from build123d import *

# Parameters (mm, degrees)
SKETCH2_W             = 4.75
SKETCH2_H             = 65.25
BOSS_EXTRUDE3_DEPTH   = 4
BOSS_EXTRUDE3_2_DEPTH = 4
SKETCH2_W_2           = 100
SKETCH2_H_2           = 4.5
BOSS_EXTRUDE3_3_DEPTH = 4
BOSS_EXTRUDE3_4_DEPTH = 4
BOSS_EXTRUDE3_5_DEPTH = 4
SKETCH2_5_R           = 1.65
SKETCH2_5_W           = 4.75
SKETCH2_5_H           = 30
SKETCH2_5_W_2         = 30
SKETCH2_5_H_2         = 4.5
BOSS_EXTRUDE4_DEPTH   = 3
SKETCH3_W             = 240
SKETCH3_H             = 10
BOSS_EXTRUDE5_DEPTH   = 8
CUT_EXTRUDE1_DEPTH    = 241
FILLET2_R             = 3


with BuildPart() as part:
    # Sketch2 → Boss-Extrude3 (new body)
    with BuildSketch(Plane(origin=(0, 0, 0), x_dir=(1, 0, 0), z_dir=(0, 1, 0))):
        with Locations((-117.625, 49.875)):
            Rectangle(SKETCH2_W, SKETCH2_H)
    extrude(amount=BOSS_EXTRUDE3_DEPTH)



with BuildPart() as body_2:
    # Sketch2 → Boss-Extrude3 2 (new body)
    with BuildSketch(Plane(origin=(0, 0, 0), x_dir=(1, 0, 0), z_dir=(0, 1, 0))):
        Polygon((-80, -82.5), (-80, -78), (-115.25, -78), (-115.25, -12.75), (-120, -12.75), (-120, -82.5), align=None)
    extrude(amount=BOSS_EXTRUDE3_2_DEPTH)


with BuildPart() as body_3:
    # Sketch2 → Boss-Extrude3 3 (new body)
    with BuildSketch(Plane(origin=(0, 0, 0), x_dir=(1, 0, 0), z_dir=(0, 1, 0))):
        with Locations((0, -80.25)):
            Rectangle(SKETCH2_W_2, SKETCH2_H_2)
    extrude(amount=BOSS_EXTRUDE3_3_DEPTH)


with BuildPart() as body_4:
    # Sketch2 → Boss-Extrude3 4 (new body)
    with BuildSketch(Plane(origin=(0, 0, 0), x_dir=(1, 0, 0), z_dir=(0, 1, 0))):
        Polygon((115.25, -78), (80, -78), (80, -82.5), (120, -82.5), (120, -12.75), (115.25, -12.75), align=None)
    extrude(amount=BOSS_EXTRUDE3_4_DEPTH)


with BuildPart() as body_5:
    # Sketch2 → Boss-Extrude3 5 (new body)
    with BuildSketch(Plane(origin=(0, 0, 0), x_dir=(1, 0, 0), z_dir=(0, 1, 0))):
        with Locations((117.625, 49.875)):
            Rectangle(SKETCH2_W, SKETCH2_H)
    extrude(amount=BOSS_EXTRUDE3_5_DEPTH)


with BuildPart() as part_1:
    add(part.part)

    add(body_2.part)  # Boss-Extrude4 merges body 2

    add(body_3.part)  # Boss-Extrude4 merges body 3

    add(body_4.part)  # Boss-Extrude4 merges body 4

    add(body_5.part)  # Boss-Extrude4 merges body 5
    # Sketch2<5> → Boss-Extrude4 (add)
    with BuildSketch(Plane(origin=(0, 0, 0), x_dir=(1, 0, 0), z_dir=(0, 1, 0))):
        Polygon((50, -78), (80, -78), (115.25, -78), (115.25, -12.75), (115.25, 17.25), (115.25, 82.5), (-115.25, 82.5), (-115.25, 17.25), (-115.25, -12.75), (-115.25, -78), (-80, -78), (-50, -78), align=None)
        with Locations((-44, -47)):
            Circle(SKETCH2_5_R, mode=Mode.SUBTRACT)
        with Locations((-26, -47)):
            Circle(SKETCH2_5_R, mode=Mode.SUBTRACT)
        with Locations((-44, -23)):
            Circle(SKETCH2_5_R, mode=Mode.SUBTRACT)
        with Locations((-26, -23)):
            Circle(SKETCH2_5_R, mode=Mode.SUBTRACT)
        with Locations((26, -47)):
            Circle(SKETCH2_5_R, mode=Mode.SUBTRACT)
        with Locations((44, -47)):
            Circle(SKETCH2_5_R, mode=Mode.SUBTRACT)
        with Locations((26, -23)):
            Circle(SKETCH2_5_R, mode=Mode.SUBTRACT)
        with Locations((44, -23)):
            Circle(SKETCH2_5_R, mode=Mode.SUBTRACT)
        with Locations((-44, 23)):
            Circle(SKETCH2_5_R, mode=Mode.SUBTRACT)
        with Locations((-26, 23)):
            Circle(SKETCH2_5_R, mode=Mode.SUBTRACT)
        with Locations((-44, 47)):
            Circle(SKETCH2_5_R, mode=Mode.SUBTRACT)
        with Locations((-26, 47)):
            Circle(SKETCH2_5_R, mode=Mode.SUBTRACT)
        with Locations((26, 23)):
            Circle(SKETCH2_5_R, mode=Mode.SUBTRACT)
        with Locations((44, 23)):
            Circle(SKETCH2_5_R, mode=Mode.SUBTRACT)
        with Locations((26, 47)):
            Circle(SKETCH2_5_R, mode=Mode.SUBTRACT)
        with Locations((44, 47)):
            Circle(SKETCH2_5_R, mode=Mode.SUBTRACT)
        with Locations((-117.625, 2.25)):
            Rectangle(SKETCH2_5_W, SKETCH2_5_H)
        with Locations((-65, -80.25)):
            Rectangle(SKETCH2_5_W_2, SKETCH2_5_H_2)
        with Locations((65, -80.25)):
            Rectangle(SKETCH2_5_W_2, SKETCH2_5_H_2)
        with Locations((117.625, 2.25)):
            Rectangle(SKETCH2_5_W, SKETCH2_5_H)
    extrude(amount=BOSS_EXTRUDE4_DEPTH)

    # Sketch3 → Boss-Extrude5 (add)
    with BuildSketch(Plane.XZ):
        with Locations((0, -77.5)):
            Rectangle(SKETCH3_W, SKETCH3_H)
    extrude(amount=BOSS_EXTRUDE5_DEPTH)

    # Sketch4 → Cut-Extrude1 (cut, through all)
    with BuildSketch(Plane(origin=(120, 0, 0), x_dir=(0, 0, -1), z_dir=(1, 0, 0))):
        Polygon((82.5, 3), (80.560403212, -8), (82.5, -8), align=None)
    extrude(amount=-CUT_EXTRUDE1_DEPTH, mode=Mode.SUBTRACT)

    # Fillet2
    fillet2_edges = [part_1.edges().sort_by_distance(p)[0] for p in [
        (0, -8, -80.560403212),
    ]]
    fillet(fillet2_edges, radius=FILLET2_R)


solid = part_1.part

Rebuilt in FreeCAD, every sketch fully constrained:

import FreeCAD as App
import Part
import Sketcher

V = App.Vector
Q = App.Units.Quantity


def edges_at(feature, points):
    """Names of the edges that pass closest to the given points."""
    edges = feature.Shape.Edges
    near = lambda p: min(range(len(edges)), key=lambda i: edges[i].distToShape(Part.Vertex(*p))[0])
    return sorted({f"Edge{near(p) + 1}" for p in points})

doc = App.newDocument("Part")
body = doc.addObject("PartDesign::Body", "Body")

# Sketch on XZ plane
sketch1 = body.newObject("Sketcher::SketchObject", "Sketch")
sketch1.AttachmentSupport = (doc.getObject("XZ_Plane"), [""])
sketch1.MapMode = "FlatFace"
sketch1.addGeometry(Part.LineSegment(V(-120, -82.5, 0), V(-120, -17.2, 0)), False)
sketch1.addGeometry(Part.LineSegment(V(-120, -17.2, 0), V(-115.2, -17.2, 0)), False)
sketch1.addGeometry(Part.LineSegment(V(-115.2, -17.2, 0), V(-115.2, -82.5, 0)), False)
sketch1.addGeometry(Part.LineSegment(V(-115.2, -82.5, 0), V(-120, -82.5, 0)), False)
sketch1.addConstraint(Sketcher.Constraint("Coincident", 0, 2, 1, 1))
sketch1.addConstraint(Sketcher.Constraint("Coincident", 1, 2, 2, 1))
sketch1.addConstraint(Sketcher.Constraint("Coincident", 2, 2, 3, 1))
sketch1.addConstraint(Sketcher.Constraint("Coincident", 3, 2, 0, 1))
sketch1.addConstraint(Sketcher.Constraint("Vertical", 0))
sketch1.addConstraint(Sketcher.Constraint("Horizontal", 1))
sketch1.addConstraint(Sketcher.Constraint("Vertical", 2))
sketch1.addConstraint(Sketcher.Constraint("Horizontal", 3))
sketch1.addConstraint(Sketcher.Constraint("DistanceX", 0, 2, -1, 1, Q("120 mm")))
sketch1.addConstraint(Sketcher.Constraint("DistanceX", 1, 1, 1, 2, Q("4.75 mm")))
sketch1.addConstraint(Sketcher.Constraint("DistanceY", 0, 1, 0, 2, Q("65.25 mm")))
sketch1.addConstraint(Sketcher.Constraint("DistanceY", 2, 2, -1, 1, Q("82.5 mm")))
pad1 = body.newObject("PartDesign::Pad", "Pad")
pad1.Profile = sketch1
pad1.Length = 4
pad1.Reversed = True
body2 = doc.addObject("PartDesign::Body", "Body001")

# Sketch on XZ plane
sketch2 = body2.newObject("Sketcher::SketchObject", "Sketch001")
sketch2.AttachmentSupport = (doc.getObject("XZ_Plane001"), [""])
sketch2.MapMode = "FlatFace"
sketch2.addGeometry(Part.LineSegment(V(-80, 82.5, 0), V(-80, 78, 0)), False)
sketch2.addGeometry(Part.LineSegment(V(-80, 78, 0), V(-115.2, 78, 0)), False)
sketch2.addGeometry(Part.LineSegment(V(-115.2, 78, 0), V(-115.2, 12.8, 0)), False)
sketch2.addGeometry(Part.LineSegment(V(-115.2, 12.8, 0), V(-120, 12.8, 0)), False)
sketch2.addGeometry(Part.LineSegment(V(-120, 12.8, 0), V(-120, 82.5, 0)), False)
sketch2.addGeometry(Part.LineSegment(V(-120, 82.5, 0), V(-80, 82.5, 0)), False)
sketch2.addConstraint(Sketcher.Constraint("Coincident", 0, 2, 1, 1))
sketch2.addConstraint(Sketcher.Constraint("Coincident", 1, 2, 2, 1))
sketch2.addConstraint(Sketcher.Constraint("Coincident", 2, 2, 3, 1))
sketch2.addConstraint(Sketcher.Constraint("Coincident", 3, 2, 4, 1))
sketch2.addConstraint(Sketcher.Constraint("Coincident", 4, 2, 5, 1))
sketch2.addConstraint(Sketcher.Constraint("Coincident", 5, 2, 0, 1))
sketch2.addConstraint(Sketcher.Constraint("Vertical", 0))
sketch2.addConstraint(Sketcher.Constraint("Horizontal", 1))
sketch2.addConstraint(Sketcher.Constraint("Vertical", 2))
sketch2.addConstraint(Sketcher.Constraint("Horizontal", 3))
sketch2.addConstraint(Sketcher.Constraint("Vertical", 4))
sketch2.addConstraint(Sketcher.Constraint("Horizontal", 5))
sketch2.addConstraint(Sketcher.Constraint("DistanceX", 5, 1, 5, 2, Q("40 mm")))
sketch2.addConstraint(Sketcher.Constraint("DistanceY", 0, 2, 0, 1, Q("4.5 mm")))
sketch2.addConstraint(Sketcher.Constraint("DistanceX", 0, 2, -1, 1, Q("80 mm")))
sketch2.addConstraint(Sketcher.Constraint("DistanceY", -1, 1, 0, 2, Q("78 mm")))
sketch2.addConstraint(Sketcher.Constraint("DistanceX", 1, 2, 1, 1, Q("35.25 mm")))
sketch2.addConstraint(Sketcher.Constraint("DistanceY", 2, 2, 2, 1, Q("65.25 mm")))
pad2 = body2.newObject("PartDesign::Pad", "Pad001")
pad2.Profile = sketch2
pad2.Length = 4
pad2.Reversed = True
body3 = doc.addObject("PartDesign::Body", "Body002")

# Sketch on XZ plane
sketch3 = body3.newObject("Sketcher::SketchObject", "Sketch002")
sketch3.AttachmentSupport = (doc.getObject("XZ_Plane002"), [""])
sketch3.MapMode = "FlatFace"
sketch3.addGeometry(Part.LineSegment(V(-50, 78, 0), V(-50, 82.5, 0)), False)
sketch3.addGeometry(Part.LineSegment(V(-50, 82.5, 0), V(50, 82.5, 0)), False)
sketch3.addGeometry(Part.LineSegment(V(50, 82.5, 0), V(50, 78, 0)), False)
sketch3.addGeometry(Part.LineSegment(V(50, 78, 0), V(-50, 78, 0)), False)
sketch3.addConstraint(Sketcher.Constraint("Coincident", 0, 2, 1, 1))
sketch3.addConstraint(Sketcher.Constraint("Coincident", 1, 2, 2, 1))
sketch3.addConstraint(Sketcher.Constraint("Coincident", 2, 2, 3, 1))
sketch3.addConstraint(Sketcher.Constraint("Coincident", 3, 2, 0, 1))
sketch3.addConstraint(Sketcher.Constraint("Vertical", 0))
sketch3.addConstraint(Sketcher.Constraint("Horizontal", 1))
sketch3.addConstraint(Sketcher.Constraint("Vertical", 2))
sketch3.addConstraint(Sketcher.Constraint("Horizontal", 3))
sketch3.addConstraint(Sketcher.Constraint("DistanceX", 1, 1, 1, 2, Q("100 mm")))
sketch3.addConstraint(Sketcher.Constraint("DistanceY", 0, 1, 0, 2, Q("4.5 mm")))
sketch3.addConstraint(Sketcher.Constraint("DistanceX", 0, 2, -1, 1, Q("50 mm")))
sketch3.addConstraint(Sketcher.Constraint("DistanceY", -1, 1, 2, 2, Q("78 mm")))
pad3 = body3.newObject("PartDesign::Pad", "Pad002")
pad3.Profile = sketch3
pad3.Length = 4
pad3.Reversed = True
body4 = doc.addObject("PartDesign::Body", "Body003")

# Sketch on XZ plane
sketch4 = body4.newObject("Sketcher::SketchObject", "Sketch003")
sketch4.AttachmentSupport = (doc.getObject("XZ_Plane003"), [""])
sketch4.MapMode = "FlatFace"
sketch4.addGeometry(Part.LineSegment(V(115.2, 78, 0), V(80, 78, 0)), False)
sketch4.addGeometry(Part.LineSegment(V(80, 78, 0), V(80, 82.5, 0)), False)
sketch4.addGeometry(Part.LineSegment(V(80, 82.5, 0), V(120, 82.5, 0)), False)
sketch4.addGeometry(Part.LineSegment(V(120, 82.5, 0), V(120, 12.8, 0)), False)
sketch4.addGeometry(Part.LineSegment(V(120, 12.8, 0), V(115.2, 12.8, 0)), False)
sketch4.addGeometry(Part.LineSegment(V(115.2, 12.8, 0), V(115.2, 78, 0)), False)
sketch4.addConstraint(Sketcher.Constraint("Coincident", 0, 2, 1, 1))
sketch4.addConstraint(Sketcher.Constraint("Coincident", 1, 2, 2, 1))
sketch4.addConstraint(Sketcher.Constraint("Coincident", 2, 2, 3, 1))
sketch4.addConstraint(Sketcher.Constraint("Coincident", 3, 2, 4, 1))
sketch4.addConstraint(Sketcher.Constraint("Coincident", 4, 2, 5, 1))
sketch4.addConstraint(Sketcher.Constraint("Coincident", 5, 2, 0, 1))
sketch4.addConstraint(Sketcher.Constraint("Horizontal", 0))
sketch4.addConstraint(Sketcher.Constraint("Vertical", 1))
sketch4.addConstraint(Sketcher.Constraint("Horizontal", 2))
sketch4.addConstraint(Sketcher.Constraint("Vertical", 3))
sketch4.addConstraint(Sketcher.Constraint("Horizontal", 4))
sketch4.addConstraint(Sketcher.Constraint("Vertical", 5))
sketch4.addConstraint(Sketcher.Constraint("DistanceX", 2, 1, 2, 2, Q("40 mm")))
sketch4.addConstraint(Sketcher.Constraint("DistanceY", 1, 1, 1, 2, Q("4.5 mm")))
sketch4.addConstraint(Sketcher.Constraint("DistanceX", -1, 1, 0, 2, Q("80 mm")))
sketch4.addConstraint(Sketcher.Constraint("DistanceY", -1, 1, 0, 2, Q("78 mm")))
sketch4.addConstraint(Sketcher.Constraint("DistanceX", 0, 2, 0, 1, Q("35.25 mm")))
sketch4.addConstraint(Sketcher.Constraint("DistanceY", 3, 2, 3, 1, Q("69.75 mm")))
pad4 = body4.newObject("PartDesign::Pad", "Pad003")
pad4.Profile = sketch4
pad4.Length = 4
pad4.Reversed = True
body5 = doc.addObject("PartDesign::Body", "Body004")

# Sketch on XZ plane
sketch5 = body5.newObject("Sketcher::SketchObject", "Sketch004")
sketch5.AttachmentSupport = (doc.getObject("XZ_Plane004"), [""])
sketch5.MapMode = "FlatFace"
sketch5.addGeometry(Part.LineSegment(V(115.2, -82.5, 0), V(115.2, -17.2, 0)), False)
sketch5.addGeometry(Part.LineSegment(V(115.2, -17.2, 0), V(120, -17.2, 0)), False)
sketch5.addGeometry(Part.LineSegment(V(120, -17.2, 0), V(120, -82.5, 0)), False)
sketch5.addGeometry(Part.LineSegment(V(120, -82.5, 0), V(115.2, -82.5, 0)), False)
sketch5.addConstraint(Sketcher.Constraint("Coincident", 0, 2, 1, 1))
sketch5.addConstraint(Sketcher.Constraint("Coincident", 1, 2, 2, 1))
sketch5.addConstraint(Sketcher.Constraint("Coincident", 2, 2, 3, 1))
sketch5.addConstraint(Sketcher.Constraint("Coincident", 3, 2, 0, 1))
sketch5.addConstraint(Sketcher.Constraint("Vertical", 0))
sketch5.addConstraint(Sketcher.Constraint("Horizontal", 1))
sketch5.addConstraint(Sketcher.Constraint("Vertical", 2))
sketch5.addConstraint(Sketcher.Constraint("Horizontal", 3))
sketch5.addConstraint(Sketcher.Constraint("DistanceX", -1, 1, 1, 2, Q("120 mm")))
sketch5.addConstraint(Sketcher.Constraint("DistanceX", 1, 1, 1, 2, Q("4.75 mm")))
sketch5.addConstraint(Sketcher.Constraint("DistanceY", 0, 1, 0, 2, Q("65.25 mm")))
sketch5.addConstraint(Sketcher.Constraint("DistanceY", 2, 2, -1, 1, Q("82.5 mm")))
pad5 = body5.newObject("PartDesign::Pad", "Pad004")
pad5.Profile = sketch5
pad5.Length = 4
pad5.Reversed = True
body.AllowCompound = True
doc.recompute()

boolean = body.newObject("PartDesign::Boolean", "Boolean")
boolean.Type = "Fuse"
boolean.addObjects([body2])
doc.recompute()

boolean2 = body.newObject("PartDesign::Boolean", "Boolean001")
boolean2.Type = "Fuse"
boolean2.addObjects([body3])
doc.recompute()

boolean3 = body.newObject("PartDesign::Boolean", "Boolean002")
boolean3.Type = "Fuse"
boolean3.addObjects([body4])
doc.recompute()

boolean4 = body.newObject("PartDesign::Boolean", "Boolean003")
boolean4.Type = "Fuse"
boolean4.addObjects([body5])

# Sketch on XZ plane
sketch6 = body.newObject("Sketcher::SketchObject", "Sketch005")
sketch6.AttachmentSupport = (doc.getObject("XZ_Plane"), [""])
sketch6.MapMode = "FlatFace"
sketch6.addGeometry(Part.LineSegment(V(115.2, 78, 0), V(115.2, 12.8, 0)), False)
sketch6.addGeometry(Part.LineSegment(V(115.2, 12.8, 0), V(120, 12.8, 0)), False)
sketch6.addGeometry(Part.LineSegment(V(120, 12.8, 0), V(120, -17.2, 0)), False)
sketch6.addGeometry(Part.LineSegment(V(120, -17.2, 0), V(115.2, -17.2, 0)), False)
sketch6.addGeometry(Part.LineSegment(V(115.2, -17.2, 0), V(115.2, -82.5, 0)), False)
sketch6.addGeometry(Part.LineSegment(V(115.2, -82.5, 0), V(-115.2, -82.5, 0)), False)
sketch6.addGeometry(Part.LineSegment(V(-115.2, -82.5, 0), V(-115.2, -17.2, 0)), False)
sketch6.addGeometry(Part.LineSegment(V(-115.2, -17.2, 0), V(-120, -17.2, 0)), False)
sketch6.addGeometry(Part.LineSegment(V(-120, -17.2, 0), V(-120, 12.8, 0)), False)
sketch6.addGeometry(Part.LineSegment(V(-120, 12.8, 0), V(-115.2, 12.8, 0)), False)
sketch6.addGeometry(Part.LineSegment(V(-115.2, 12.8, 0), V(-115.2, 78, 0)), False)
sketch6.addGeometry(Part.LineSegment(V(-115.2, 78, 0), V(-80, 78, 0)), False)
sketch6.addGeometry(Part.LineSegment(V(-80, 78, 0), V(-80, 82.5, 0)), False)
sketch6.addGeometry(Part.LineSegment(V(-80, 82.5, 0), V(-50, 82.5, 0)), False)
sketch6.addGeometry(Part.LineSegment(V(-50, 82.5, 0), V(-50, 78, 0)), False)
sketch6.addGeometry(Part.LineSegment(V(-50, 78, 0), V(50, 78, 0)), False)
sketch6.addGeometry(Part.LineSegment(V(50, 78, 0), V(50, 82.5, 0)), False)
sketch6.addGeometry(Part.LineSegment(V(50, 82.5, 0), V(80, 82.5, 0)), False)
sketch6.addGeometry(Part.LineSegment(V(80, 82.5, 0), V(80, 78, 0)), False)
sketch6.addGeometry(Part.LineSegment(V(80, 78, 0), V(115.2, 78, 0)), False)
sketch6.addGeometry(Part.Circle(V(-44, 47, 0), V(0, 0, 1), 1.6), False)
sketch6.addGeometry(Part.Circle(V(-26, 47, 0), V(0, 0, 1), 1.6), False)
sketch6.addGeometry(Part.Circle(V(-44, 23, 0), V(0, 0, 1), 1.6), False)
sketch6.addGeometry(Part.Circle(V(-26, 23, 0), V(0, 0, 1), 1.6), False)
sketch6.addGeometry(Part.Circle(V(26, 47, 0), V(0, 0, 1), 1.6), False)
sketch6.addGeometry(Part.Circle(V(44, 47, 0), V(0, 0, 1), 1.6), False)
sketch6.addGeometry(Part.Circle(V(26, 23, 0), V(0, 0, 1), 1.6), False)
sketch6.addGeometry(Part.Circle(V(44, 23, 0), V(0, 0, 1), 1.6), False)
sketch6.addGeometry(Part.Circle(V(-44, -23, 0), V(0, 0, 1), 1.6), False)
sketch6.addGeometry(Part.Circle(V(-26, -23, 0), V(0, 0, 1), 1.6), False)
sketch6.addGeometry(Part.Circle(V(-44, -47, 0), V(0, 0, 1), 1.6), False)
sketch6.addGeometry(Part.Circle(V(-26, -47, 0), V(0, 0, 1), 1.6), False)
sketch6.addGeometry(Part.Circle(V(26, -23, 0), V(0, 0, 1), 1.6), False)
sketch6.addGeometry(Part.Circle(V(44, -23, 0), V(0, 0, 1), 1.6), False)
sketch6.addGeometry(Part.Circle(V(26, -47, 0), V(0, 0, 1), 1.6), False)
sketch6.addGeometry(Part.Circle(V(44, -47, 0), V(0, 0, 1), 1.6), False)
sketch6.addConstraint(Sketcher.Constraint("Coincident", 0, 2, 1, 1))
sketch6.addConstraint(Sketcher.Constraint("Coincident", 1, 2, 2, 1))
sketch6.addConstraint(Sketcher.Constraint("Coincident", 2, 2, 3, 1))
sketch6.addConstraint(Sketcher.Constraint("Coincident", 3, 2, 4, 1))
sketch6.addConstraint(Sketcher.Constraint("Coincident", 4, 2, 5, 1))
sketch6.addConstraint(Sketcher.Constraint("Coincident", 5, 2, 6, 1))
sketch6.addConstraint(Sketcher.Constraint("Coincident", 6, 2, 7, 1))
sketch6.addConstraint(Sketcher.Constraint("Coincident", 7, 2, 8, 1))
sketch6.addConstraint(Sketcher.Constraint("Coincident", 8, 2, 9, 1))
sketch6.addConstraint(Sketcher.Constraint("Coincident", 9, 2, 10, 1))
sketch6.addConstraint(Sketcher.Constraint("Coincident", 10, 2, 11, 1))
sketch6.addConstraint(Sketcher.Constraint("Coincident", 11, 2, 12, 1))
sketch6.addConstraint(Sketcher.Constraint("Coincident", 12, 2, 13, 1))
sketch6.addConstraint(Sketcher.Constraint("Coincident", 13, 2, 14, 1))
sketch6.addConstraint(Sketcher.Constraint("Coincident", 14, 2, 15, 1))
sketch6.addConstraint(Sketcher.Constraint("Coincident", 15, 2, 16, 1))
sketch6.addConstraint(Sketcher.Constraint("Coincident", 16, 2, 17, 1))
sketch6.addConstraint(Sketcher.Constraint("Coincident", 17, 2, 18, 1))
sketch6.addConstraint(Sketcher.Constraint("Coincident", 18, 2, 19, 1))
sketch6.addConstraint(Sketcher.Constraint("Coincident", 19, 2, 0, 1))
sketch6.addConstraint(Sketcher.Constraint("Vertical", 0))
sketch6.addConstraint(Sketcher.Constraint("Horizontal", 1))
sketch6.addConstraint(Sketcher.Constraint("Vertical", 2))
sketch6.addConstraint(Sketcher.Constraint("Horizontal", 3))
sketch6.addConstraint(Sketcher.Constraint("Vertical", 4))
sketch6.addConstraint(Sketcher.Constraint("Horizontal", 5))
sketch6.addConstraint(Sketcher.Constraint("Vertical", 6))
sketch6.addConstraint(Sketcher.Constraint("Horizontal", 7))
sketch6.addConstraint(Sketcher.Constraint("Vertical", 8))
sketch6.addConstraint(Sketcher.Constraint("Horizontal", 9))
sketch6.addConstraint(Sketcher.Constraint("Vertical", 10))
sketch6.addConstraint(Sketcher.Constraint("Horizontal", 11))
sketch6.addConstraint(Sketcher.Constraint("Vertical", 12))
sketch6.addConstraint(Sketcher.Constraint("Horizontal", 13))
sketch6.addConstraint(Sketcher.Constraint("Vertical", 14))
sketch6.addConstraint(Sketcher.Constraint("Horizontal", 15))
sketch6.addConstraint(Sketcher.Constraint("Vertical", 16))
sketch6.addConstraint(Sketcher.Constraint("Horizontal", 17))
sketch6.addConstraint(Sketcher.Constraint("Vertical", 18))
sketch6.addConstraint(Sketcher.Constraint("Horizontal", 19))
sketch6.addConstraint(Sketcher.Constraint("Equal", 20, 21))
sketch6.addConstraint(Sketcher.Constraint("Equal", 21, 22))
sketch6.addConstraint(Sketcher.Constraint("Equal", 22, 23))
sketch6.addConstraint(Sketcher.Constraint("Equal", 23, 24))
sketch6.addConstraint(Sketcher.Constraint("Equal", 24, 25))
sketch6.addConstraint(Sketcher.Constraint("Equal", 25, 26))
sketch6.addConstraint(Sketcher.Constraint("Equal", 26, 27))
sketch6.addConstraint(Sketcher.Constraint("Equal", 27, 28))
sketch6.addConstraint(Sketcher.Constraint("Equal", 28, 29))
sketch6.addConstraint(Sketcher.Constraint("Equal", 29, 30))
sketch6.addConstraint(Sketcher.Constraint("Equal", 30, 31))
sketch6.addConstraint(Sketcher.Constraint("Equal", 31, 32))
sketch6.addConstraint(Sketcher.Constraint("Equal", 32, 33))
sketch6.addConstraint(Sketcher.Constraint("Equal", 33, 34))
sketch6.addConstraint(Sketcher.Constraint("Equal", 34, 35))
sketch6.addConstraint(Sketcher.Constraint("Symmetric", 27, 3, 28, 3, -1, 1))
sketch6.addConstraint(Sketcher.Constraint("Symmetric", 26, 3, 29, 3, -1, 1))
sketch6.addConstraint(Sketcher.Constraint("Symmetric", 25, 3, 30, 3, -1, 1))
sketch6.addConstraint(Sketcher.Constraint("Symmetric", 24, 3, 31, 3, -1, 1))
sketch6.addConstraint(Sketcher.Constraint("Symmetric", 23, 3, 32, 3, -1, 1))
sketch6.addConstraint(Sketcher.Constraint("Symmetric", 22, 3, 33, 3, -1, 1))
sketch6.addConstraint(Sketcher.Constraint("Symmetric", 21, 3, 34, 3, -1, 1))
sketch6.addConstraint(Sketcher.Constraint("Symmetric", 20, 3, 35, 3, -1, 1))
sketch6.addConstraint(Sketcher.Constraint("Symmetric", 21, 3, 24, 3, -2))
sketch6.addConstraint(Sketcher.Constraint("Symmetric", 20, 3, 25, 3, -2))
sketch6.addConstraint(Sketcher.Constraint("Symmetric", 23, 3, 26, 3, -2))
sketch6.addConstraint(Sketcher.Constraint("Symmetric", 22, 3, 27, 3, -2))
sketch6.addConstraint(Sketcher.Constraint("Symmetric", 3, 2, 6, 2, -2))
sketch6.addConstraint(Sketcher.Constraint("Symmetric", 1, 2, 8, 2, -2))
sketch6.addConstraint(Sketcher.Constraint("Symmetric", 13, 2, 16, 2, -2))
sketch6.addConstraint(Sketcher.Constraint("Symmetric", 11, 2, 18, 2, -2))
sketch6.addConstraint(Sketcher.Constraint("Horizontal", 20, 3, 21, 3))
sketch6.addConstraint(Sketcher.Constraint("Horizontal", 22, 3, 23, 3))
sketch6.addConstraint(Sketcher.Constraint("Horizontal", 11, 2, 14, 2))
sketch6.addConstraint(Sketcher.Constraint("Vertical", 20, 3, 22, 3))
sketch6.addConstraint(Sketcher.Constraint("Vertical", 21, 3, 23, 3))
sketch6.addConstraint(Sketcher.Constraint("Vertical", 0, 2, 3, 2))
sketch6.addConstraint(Sketcher.Constraint("Vertical", 6, 2, 9, 2))
sketch6.addConstraint(Sketcher.Constraint("Equal", 17, 2))
sketch6.addConstraint(Sketcher.Constraint("Equal", 0, 4))
sketch6.addConstraint(Sketcher.Constraint("Diameter", 20, Q("3.3 mm")))
sketch6.addConstraint(Sketcher.Constraint("DistanceX", 13, 1, 13, 2, Q("30 mm")))
sketch6.addConstraint(Sketcher.Constraint("DistanceX", 15, 1, 15, 2, Q("100 mm")))
sketch6.addConstraint(Sketcher.Constraint("DistanceX", 5, 2, 5, 1, Q("230.5 mm")))
sketch6.addConstraint(Sketcher.Constraint("DistanceY", 12, 1, 12, 2, Q("4.5 mm")))
sketch6.addConstraint(Sketcher.Constraint("DistanceX", 20, 3, -1, 1, Q("44 mm")))
sketch6.addConstraint(Sketcher.Constraint("DistanceY", -1, 1, 20, 3, Q("47 mm")))
sketch6.addConstraint(Sketcher.Constraint("DistanceX", 21, 3, -1, 1, Q("26 mm")))
sketch6.addConstraint(Sketcher.Constraint("DistanceY", -1, 1, 22, 3, Q("23 mm")))
sketch6.addConstraint(Sketcher.Constraint("DistanceX", -1, 1, 1, 2, Q("120 mm")))
sketch6.addConstraint(Sketcher.Constraint("DistanceY", -1, 1, 10, 2, Q("78 mm")))
sketch6.addConstraint(Sketcher.Constraint("DistanceY", 0, 2, 0, 1, Q("65.25 mm")))
pad6 = body.newObject("PartDesign::Pad", "Pad005")
pad6.Profile = sketch6
pad6.Length = 3
pad6.Reversed = True

# Sketch on XZ plane
sketch7 = body.newObject("Sketcher::SketchObject", "Sketch006")
sketch7.AttachmentSupport = (doc.getObject("XZ_Plane"), [""])
sketch7.MapMode = "FlatFace"
sketch7.addGeometry(Part.LineSegment(V(-120, -72, 0), V(-120, -82, 0)), False)
sketch7.addGeometry(Part.LineSegment(V(-120, -82, 0), V(120, -82, 0)), False)
sketch7.addGeometry(Part.LineSegment(V(120, -82, 0), V(120, -72, 0)), False)
sketch7.addGeometry(Part.LineSegment(V(120, -72, 0), V(-120, -72, 0)), False)
sketch7.addConstraint(Sketcher.Constraint("Coincident", 0, 2, 1, 1))
sketch7.addConstraint(Sketcher.Constraint("Coincident", 1, 2, 2, 1))
sketch7.addConstraint(Sketcher.Constraint("Coincident", 2, 2, 3, 1))
sketch7.addConstraint(Sketcher.Constraint("Coincident", 3, 2, 0, 1))
sketch7.addConstraint(Sketcher.Constraint("Vertical", 0))
sketch7.addConstraint(Sketcher.Constraint("Horizontal", 1))
sketch7.addConstraint(Sketcher.Constraint("Vertical", 2))
sketch7.addConstraint(Sketcher.Constraint("Horizontal", 3))
sketch7.addConstraint(Sketcher.Constraint("DistanceX", 1, 1, 1, 2, Q("240 mm")))
sketch7.addConstraint(Sketcher.Constraint("DistanceY", 0, 2, 0, 1, Q("10 mm")))
sketch7.addConstraint(Sketcher.Constraint("DistanceX", 0, 2, -1, 1, Q("120 mm")))
sketch7.addConstraint(Sketcher.Constraint("DistanceY", 0, 2, -1, 1, Q("82.5 mm")))
pad7 = body.newObject("PartDesign::Pad", "Pad006")
pad7.Profile = sketch7
pad7.Length = 8

# Sketch on YZ plane
sketch8 = body.newObject("Sketcher::SketchObject", "Sketch007")
sketch8.AttachmentSupport = (doc.getObject("YZ_Plane"), [""])
sketch8.MapMode = "FlatFace"
sketch8.AttachmentOffset = App.Placement(V(0, 0, 120), App.Rotation())
sketch8.addGeometry(Part.LineSegment(V(3, -82.5, 0), V(-8, -80.6, 0)), False)
sketch8.addGeometry(Part.LineSegment(V(-8, -80.6, 0), V(-8, -82.5, 0)), False)
sketch8.addGeometry(Part.LineSegment(V(-8, -82.5, 0), V(3, -82.5, 0)), False)
sketch8.addConstraint(Sketcher.Constraint("Coincident", 0, 2, 1, 1))
sketch8.addConstraint(Sketcher.Constraint("Coincident", 1, 2, 2, 1))
sketch8.addConstraint(Sketcher.Constraint("Coincident", 2, 2, 0, 1))
sketch8.addConstraint(Sketcher.Constraint("Vertical", 1))
sketch8.addConstraint(Sketcher.Constraint("Horizontal", 2))
sketch8.addConstraint(Sketcher.Constraint("DistanceX", 2, 1, 2, 2, Q("11 mm")))
sketch8.addConstraint(Sketcher.Constraint("Angle", 0, Q("170 deg")))
sketch8.addConstraint(Sketcher.Constraint("DistanceX", 0, 2, -1, 1, Q("8 mm")))
sketch8.addConstraint(Sketcher.Constraint("DistanceY", 1, 2, -1, 1, Q("82.5 mm")))
pocket1 = body.newObject("PartDesign::Pocket", "Pocket")
pocket1.Profile = sketch8
pocket1.Type = "ThroughAll"
doc.recompute()

fillet = body.newObject("PartDesign::Fillet", "Fillet")
fillet.Base = (pocket1, edges_at(pocket1, [(0, -8, -80.56)]))
fillet.Radius = 3

doc.recompute()
